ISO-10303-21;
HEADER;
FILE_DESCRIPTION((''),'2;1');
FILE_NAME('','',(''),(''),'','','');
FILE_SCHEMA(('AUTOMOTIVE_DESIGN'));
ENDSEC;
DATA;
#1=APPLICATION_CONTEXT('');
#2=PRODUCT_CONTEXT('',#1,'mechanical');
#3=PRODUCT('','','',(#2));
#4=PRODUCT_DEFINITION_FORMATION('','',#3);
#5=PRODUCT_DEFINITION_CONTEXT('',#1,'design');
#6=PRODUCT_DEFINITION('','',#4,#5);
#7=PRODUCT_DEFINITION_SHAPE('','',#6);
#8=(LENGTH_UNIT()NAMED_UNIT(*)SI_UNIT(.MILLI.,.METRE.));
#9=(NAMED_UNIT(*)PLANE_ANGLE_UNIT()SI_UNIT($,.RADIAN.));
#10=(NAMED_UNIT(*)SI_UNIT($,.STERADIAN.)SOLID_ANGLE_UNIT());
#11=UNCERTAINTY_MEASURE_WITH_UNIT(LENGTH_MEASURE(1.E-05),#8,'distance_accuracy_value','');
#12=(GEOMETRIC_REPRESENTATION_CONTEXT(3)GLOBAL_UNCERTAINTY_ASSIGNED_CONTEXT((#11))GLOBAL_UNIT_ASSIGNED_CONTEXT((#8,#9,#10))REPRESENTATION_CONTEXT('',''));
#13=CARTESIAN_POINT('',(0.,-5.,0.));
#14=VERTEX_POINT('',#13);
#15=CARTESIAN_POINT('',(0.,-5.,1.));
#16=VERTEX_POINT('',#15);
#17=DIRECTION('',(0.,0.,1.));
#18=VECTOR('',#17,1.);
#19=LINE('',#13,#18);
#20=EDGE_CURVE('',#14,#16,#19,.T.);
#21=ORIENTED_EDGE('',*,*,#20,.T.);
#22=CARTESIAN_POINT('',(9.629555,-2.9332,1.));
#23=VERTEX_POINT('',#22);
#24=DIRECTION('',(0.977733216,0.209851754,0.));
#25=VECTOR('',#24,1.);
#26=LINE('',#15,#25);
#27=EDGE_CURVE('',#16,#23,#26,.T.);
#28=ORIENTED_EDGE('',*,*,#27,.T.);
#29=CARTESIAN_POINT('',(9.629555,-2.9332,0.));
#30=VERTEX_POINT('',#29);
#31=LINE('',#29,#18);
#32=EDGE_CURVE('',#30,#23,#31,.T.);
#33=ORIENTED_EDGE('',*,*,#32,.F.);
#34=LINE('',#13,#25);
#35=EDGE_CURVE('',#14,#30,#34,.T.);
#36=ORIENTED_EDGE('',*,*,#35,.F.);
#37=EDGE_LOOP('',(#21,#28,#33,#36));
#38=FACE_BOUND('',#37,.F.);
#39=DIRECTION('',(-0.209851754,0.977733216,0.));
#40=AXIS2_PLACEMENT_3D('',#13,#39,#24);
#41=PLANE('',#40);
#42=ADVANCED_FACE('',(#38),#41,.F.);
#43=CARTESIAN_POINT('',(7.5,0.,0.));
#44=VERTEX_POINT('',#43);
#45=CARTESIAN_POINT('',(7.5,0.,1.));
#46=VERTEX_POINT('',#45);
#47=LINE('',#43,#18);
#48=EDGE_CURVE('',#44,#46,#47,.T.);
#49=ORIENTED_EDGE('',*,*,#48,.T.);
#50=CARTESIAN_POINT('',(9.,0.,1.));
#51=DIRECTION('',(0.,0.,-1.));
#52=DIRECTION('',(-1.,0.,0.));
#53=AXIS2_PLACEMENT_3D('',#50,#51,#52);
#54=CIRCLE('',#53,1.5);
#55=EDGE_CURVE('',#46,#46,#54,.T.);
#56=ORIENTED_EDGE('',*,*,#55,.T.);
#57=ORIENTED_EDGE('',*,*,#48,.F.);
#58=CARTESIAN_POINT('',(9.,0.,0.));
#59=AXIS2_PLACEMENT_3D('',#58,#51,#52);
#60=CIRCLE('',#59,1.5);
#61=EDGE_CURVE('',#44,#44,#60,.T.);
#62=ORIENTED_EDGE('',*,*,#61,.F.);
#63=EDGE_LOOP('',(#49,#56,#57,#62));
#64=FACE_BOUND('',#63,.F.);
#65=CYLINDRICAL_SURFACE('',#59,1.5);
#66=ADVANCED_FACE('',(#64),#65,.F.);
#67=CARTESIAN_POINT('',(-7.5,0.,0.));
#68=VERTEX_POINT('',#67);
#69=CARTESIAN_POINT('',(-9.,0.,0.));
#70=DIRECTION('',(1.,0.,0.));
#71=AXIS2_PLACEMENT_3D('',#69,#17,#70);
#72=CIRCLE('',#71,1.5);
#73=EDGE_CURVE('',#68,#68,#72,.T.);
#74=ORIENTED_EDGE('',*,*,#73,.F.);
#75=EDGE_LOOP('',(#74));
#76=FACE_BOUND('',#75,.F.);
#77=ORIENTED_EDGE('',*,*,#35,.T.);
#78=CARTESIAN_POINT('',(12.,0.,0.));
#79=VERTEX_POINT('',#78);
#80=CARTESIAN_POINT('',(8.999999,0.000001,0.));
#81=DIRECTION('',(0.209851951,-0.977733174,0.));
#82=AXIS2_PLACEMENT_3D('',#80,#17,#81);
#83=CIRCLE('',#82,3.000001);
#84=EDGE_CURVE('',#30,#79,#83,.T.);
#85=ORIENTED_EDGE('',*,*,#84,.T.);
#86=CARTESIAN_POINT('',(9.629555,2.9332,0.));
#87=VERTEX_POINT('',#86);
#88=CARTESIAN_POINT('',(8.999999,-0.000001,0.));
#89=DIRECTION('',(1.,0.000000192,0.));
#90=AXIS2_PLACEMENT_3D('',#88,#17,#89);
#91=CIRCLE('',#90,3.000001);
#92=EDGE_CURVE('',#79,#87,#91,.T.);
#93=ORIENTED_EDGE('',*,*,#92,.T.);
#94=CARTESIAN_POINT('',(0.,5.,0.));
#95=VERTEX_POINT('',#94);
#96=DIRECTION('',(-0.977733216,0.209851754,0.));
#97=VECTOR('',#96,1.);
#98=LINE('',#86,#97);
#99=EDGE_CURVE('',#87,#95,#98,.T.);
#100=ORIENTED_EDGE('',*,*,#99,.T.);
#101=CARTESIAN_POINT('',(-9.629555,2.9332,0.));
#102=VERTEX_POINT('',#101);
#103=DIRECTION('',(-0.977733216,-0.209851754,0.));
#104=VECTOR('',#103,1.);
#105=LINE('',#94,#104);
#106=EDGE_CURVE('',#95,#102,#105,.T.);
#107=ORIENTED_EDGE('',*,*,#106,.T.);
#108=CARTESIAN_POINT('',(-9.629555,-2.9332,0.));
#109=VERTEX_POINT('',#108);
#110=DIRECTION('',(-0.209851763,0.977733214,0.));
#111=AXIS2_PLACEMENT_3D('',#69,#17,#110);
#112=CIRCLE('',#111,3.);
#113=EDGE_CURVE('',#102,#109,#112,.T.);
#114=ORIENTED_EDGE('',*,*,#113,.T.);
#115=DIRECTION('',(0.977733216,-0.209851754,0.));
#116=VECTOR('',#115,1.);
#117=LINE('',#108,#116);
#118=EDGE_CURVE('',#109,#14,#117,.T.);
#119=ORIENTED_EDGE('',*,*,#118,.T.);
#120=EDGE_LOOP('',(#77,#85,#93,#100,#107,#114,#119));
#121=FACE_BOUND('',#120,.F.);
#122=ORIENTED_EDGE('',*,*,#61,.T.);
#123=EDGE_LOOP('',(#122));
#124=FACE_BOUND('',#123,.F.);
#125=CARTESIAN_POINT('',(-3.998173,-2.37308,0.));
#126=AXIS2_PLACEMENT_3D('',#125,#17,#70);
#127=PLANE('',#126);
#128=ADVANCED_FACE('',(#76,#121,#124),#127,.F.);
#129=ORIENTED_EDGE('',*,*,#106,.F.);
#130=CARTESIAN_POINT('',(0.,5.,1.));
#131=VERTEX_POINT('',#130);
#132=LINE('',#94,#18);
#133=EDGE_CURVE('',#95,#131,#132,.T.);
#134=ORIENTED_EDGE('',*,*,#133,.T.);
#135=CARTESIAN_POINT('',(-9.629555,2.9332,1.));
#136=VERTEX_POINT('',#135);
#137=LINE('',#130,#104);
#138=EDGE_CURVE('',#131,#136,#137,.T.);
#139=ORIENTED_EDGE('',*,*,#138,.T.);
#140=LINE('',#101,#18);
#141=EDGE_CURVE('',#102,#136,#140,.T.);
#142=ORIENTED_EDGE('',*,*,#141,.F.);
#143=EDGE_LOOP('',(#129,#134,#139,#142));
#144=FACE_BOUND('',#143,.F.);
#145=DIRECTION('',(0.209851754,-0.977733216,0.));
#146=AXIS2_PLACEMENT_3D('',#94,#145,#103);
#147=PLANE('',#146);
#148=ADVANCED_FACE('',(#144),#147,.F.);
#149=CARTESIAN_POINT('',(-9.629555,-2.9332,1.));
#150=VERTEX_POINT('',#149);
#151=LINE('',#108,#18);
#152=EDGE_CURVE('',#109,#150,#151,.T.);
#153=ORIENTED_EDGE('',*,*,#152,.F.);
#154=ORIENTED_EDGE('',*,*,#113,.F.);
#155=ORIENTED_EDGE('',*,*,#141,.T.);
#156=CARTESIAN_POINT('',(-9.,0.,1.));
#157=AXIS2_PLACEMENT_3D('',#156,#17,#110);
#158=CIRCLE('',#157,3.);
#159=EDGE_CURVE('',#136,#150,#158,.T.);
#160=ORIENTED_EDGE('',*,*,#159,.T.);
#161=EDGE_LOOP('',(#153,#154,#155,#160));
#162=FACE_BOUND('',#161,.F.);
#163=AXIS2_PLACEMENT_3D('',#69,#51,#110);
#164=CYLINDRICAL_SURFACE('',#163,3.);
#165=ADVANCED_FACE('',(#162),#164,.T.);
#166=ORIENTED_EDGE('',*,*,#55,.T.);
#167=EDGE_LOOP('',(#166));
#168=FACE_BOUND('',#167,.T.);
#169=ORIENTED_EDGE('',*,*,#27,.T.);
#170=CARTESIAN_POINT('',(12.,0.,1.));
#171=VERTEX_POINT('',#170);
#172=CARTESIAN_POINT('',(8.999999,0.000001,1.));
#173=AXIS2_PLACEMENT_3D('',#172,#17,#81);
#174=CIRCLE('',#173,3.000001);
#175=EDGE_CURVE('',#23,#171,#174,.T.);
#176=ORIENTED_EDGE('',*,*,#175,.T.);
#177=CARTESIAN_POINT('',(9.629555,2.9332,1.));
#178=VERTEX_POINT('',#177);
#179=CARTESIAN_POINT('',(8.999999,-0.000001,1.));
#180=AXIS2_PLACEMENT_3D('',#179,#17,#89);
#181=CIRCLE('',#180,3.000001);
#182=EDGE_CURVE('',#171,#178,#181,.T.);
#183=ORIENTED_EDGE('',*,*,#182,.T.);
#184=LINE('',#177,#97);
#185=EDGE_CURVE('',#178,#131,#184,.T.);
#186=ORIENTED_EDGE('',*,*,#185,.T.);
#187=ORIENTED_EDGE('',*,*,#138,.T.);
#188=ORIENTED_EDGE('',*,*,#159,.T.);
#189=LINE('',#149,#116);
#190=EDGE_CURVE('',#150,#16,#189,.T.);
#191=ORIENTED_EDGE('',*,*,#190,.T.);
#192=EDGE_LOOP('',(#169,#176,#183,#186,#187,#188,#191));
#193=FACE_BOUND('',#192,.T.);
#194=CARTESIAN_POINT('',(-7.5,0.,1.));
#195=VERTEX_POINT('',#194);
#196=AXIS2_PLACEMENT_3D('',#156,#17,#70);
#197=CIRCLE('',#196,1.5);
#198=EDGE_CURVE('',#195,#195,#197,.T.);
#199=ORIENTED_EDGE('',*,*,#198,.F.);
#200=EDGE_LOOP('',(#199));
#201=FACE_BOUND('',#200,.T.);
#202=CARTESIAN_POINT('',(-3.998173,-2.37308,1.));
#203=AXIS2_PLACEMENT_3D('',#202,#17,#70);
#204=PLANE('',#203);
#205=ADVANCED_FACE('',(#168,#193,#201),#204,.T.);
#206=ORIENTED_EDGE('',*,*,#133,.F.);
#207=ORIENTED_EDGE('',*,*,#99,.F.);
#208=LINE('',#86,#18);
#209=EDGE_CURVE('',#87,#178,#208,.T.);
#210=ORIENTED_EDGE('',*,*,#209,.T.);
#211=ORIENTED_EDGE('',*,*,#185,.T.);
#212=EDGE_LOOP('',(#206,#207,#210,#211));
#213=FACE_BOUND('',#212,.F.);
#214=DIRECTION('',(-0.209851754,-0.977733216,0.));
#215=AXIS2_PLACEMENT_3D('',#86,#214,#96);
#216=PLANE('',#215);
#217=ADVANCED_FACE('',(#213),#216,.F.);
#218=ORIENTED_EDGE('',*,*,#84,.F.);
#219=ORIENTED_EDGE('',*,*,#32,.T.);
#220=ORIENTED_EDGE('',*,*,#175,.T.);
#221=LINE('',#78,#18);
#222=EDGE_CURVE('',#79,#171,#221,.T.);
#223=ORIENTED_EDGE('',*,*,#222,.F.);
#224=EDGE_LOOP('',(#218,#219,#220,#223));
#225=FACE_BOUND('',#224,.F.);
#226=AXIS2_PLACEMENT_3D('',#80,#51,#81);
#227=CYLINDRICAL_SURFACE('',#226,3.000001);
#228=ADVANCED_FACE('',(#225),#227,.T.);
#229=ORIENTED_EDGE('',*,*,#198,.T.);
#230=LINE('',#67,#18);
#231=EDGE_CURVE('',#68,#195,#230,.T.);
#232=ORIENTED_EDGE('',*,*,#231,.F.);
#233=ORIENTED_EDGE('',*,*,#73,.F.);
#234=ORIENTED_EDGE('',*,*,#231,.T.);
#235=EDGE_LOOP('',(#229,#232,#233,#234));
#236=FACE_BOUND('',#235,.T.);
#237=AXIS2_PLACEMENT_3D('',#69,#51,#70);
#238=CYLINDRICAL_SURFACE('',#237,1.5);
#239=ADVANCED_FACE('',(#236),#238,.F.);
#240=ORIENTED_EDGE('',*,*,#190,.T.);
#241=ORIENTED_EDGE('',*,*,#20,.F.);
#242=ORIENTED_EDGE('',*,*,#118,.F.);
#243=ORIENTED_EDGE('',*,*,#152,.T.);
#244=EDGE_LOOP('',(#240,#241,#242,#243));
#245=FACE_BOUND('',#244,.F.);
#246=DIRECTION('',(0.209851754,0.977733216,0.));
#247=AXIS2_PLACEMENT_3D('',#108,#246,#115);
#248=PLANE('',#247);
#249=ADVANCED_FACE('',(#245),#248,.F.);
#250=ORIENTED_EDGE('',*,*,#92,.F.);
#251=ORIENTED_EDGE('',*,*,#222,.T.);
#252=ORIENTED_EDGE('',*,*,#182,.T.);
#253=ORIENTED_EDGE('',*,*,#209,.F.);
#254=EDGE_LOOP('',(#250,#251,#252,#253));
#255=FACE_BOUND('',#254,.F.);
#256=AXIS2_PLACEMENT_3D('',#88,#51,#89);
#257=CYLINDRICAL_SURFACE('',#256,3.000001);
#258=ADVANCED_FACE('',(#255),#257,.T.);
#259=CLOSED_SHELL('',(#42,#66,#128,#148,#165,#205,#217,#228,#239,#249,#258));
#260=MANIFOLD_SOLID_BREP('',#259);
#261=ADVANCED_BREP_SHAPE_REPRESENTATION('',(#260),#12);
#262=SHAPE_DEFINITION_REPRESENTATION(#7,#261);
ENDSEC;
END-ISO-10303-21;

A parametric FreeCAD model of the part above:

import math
import FreeCAD as App
import Part
import Sketcher
Q = App.Units.Quantity

doc = App.newDocument("Part")
params = doc.addObject("Spreadsheet::Sheet", "Params")
for row, (alias, value) in enumerate([
    ("sketch1_diameter", "3 mm"),
    ("sketch1_radius", "3 mm"),
    ("pad1_length", "1 mm"),
], start=1):
    params.set(f"A{row}", alias)
    params.set(f"B{row}", "=" + value)
    params.setAlias(f"B{row}", alias)

body = doc.addObject("PartDesign::Body", "Body")

sketch1 = body.newObject("Sketcher::SketchObject", "Sketch")
sketch1.AttachmentSupport = (doc.getObject("XY_Plane"), [""])
sketch1.MapMode = "FlatFace"
sketch1.addGeometry(Part.LineSegment(App.Vector(9.629555, 2.9332, 0), App.Vector(0, 5, 0)), False)
sketch1.addGeometry(Part.LineSegment(App.Vector(0, 5, 0), App.Vector(-9.629555, 2.9332, 0)), False)
sketch1.addGeometry(Part.ArcOfCircle(Part.Circle(App.Vector(-9, 0, 0), App.Vector(0, 0, 1), 3), math.radians(102.113665), math.radians(257.886335)), False)
sketch1.addGeometry(Part.LineSegment(App.Vector(-9.629555, -2.9332, 0), App.Vector(0, -5, 0)), False)
sketch1.addGeometry(Part.LineSegment(App.Vector(0, -5, 0), App.Vector(9.629555, -2.9332, 0)), False)
sketch1.addGeometry(Part.ArcOfCircle(Part.Circle(App.Vector(8.999999, 0.000001, 0), App.Vector(0, 0, 1), 3.000001), math.radians(-77.886324), math.radians(-0.000011)), False)
sketch1.addGeometry(Part.ArcOfCircle(Part.Circle(App.Vector(8.999999, -0.000001, 0), App.Vector(0, 0, 1), 3.000001), math.radians(0.000011), math.radians(77.886324)), False)
sketch1.addGeometry(Part.Circle(App.Vector(-9, 0, 0), App.Vector(0, 0, 1), 1.5), False)
sketch1.addGeometry(Part.Circle(App.Vector(9, 0, 0), App.Vector(0, 0, 1), 1.5), False)
sketch1.addConstraint(Sketcher.Constraint("Coincident", 0, 2, 1, 1))
sketch1.addConstraint(Sketcher.Constraint("Tangent", 1, 2, 2, 1))
sketch1.addConstraint(Sketcher.Constraint("Tangent", 2, 2, 3, 1))
sketch1.addConstraint(Sketcher.Constraint("Coincident", 3, 2, 4, 1))
sketch1.addConstraint(Sketcher.Constraint("Tangent", 4, 2, 5, 1))
sketch1.addConstraint(Sketcher.Constraint("Tangent", 5, 2, 6, 1))
sketch1.addConstraint(Sketcher.Constraint("Tangent", 6, 2, 0, 1))
sketch1.addConstraint(Sketcher.Constraint("Coincident", 7, 3, 2, 3))
sketch1.addConstraint(Sketcher.Constraint("Coincident", 8, 3, 5, 3))
sketch1.addConstraint(Sketcher.Constraint("Equal", 2, 5))
sketch1.addConstraint(Sketcher.Constraint("Equal", 5, 6))
sketch1.addConstraint(Sketcher.Constraint("Equal", 7, 8))
sketch1.addConstraint(Sketcher.Constraint("Symmetric", 2, 3, 5, 3, -1, 1))
sketch1.addConstraint(Sketcher.Constraint("Symmetric", 0, 2, 3, 2, -1, 1))
sketch1.addConstraint(Sketcher.Constraint("Symmetric", 2, 2, 4, 2, -2))
sketch1.addConstraint(Sketcher.Constraint("PointOnObject", 5, 2, -1))
sketch1.addConstraint(Sketcher.Constraint("Diameter", 7, Q("3 mm")))
sketch1.addConstraint(Sketcher.Constraint("Radius", 2, Q("3 mm")))
sketch1.addConstraint(Sketcher.Constraint("DistanceX", 2, 3, -1, 1, Q("9 mm")))
sketch1.addConstraint(Sketcher.Constraint("DistanceY", -1, 1, 0, 2, Q("5 mm")))
sketch1.setExpression("Constraints[16]", "Params.sketch1_diameter")
sketch1.setExpression("Constraints[17]", "Params.sketch1_radius")
pad1 = body.newObject("PartDesign::Pad", "Pad")
pad1.Profile = sketch1
pad1.setExpression("Length", "Params.pad1_length")

doc.recompute()
